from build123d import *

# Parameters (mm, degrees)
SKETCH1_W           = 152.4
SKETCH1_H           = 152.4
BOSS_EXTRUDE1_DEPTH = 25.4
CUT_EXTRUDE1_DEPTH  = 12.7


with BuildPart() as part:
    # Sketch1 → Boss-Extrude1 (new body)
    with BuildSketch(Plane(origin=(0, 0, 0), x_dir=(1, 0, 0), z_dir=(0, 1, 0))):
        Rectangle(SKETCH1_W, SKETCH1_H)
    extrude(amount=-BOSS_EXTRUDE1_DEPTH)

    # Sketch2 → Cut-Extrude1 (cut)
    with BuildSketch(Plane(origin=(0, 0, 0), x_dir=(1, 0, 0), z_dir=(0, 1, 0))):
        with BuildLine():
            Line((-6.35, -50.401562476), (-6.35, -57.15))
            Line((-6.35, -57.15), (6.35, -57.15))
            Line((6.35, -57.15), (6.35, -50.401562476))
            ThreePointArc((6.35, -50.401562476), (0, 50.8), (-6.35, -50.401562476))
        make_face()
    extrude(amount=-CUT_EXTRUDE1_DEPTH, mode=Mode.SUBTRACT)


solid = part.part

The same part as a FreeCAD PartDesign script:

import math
import FreeCAD as App
import Part
import Sketcher

V = App.Vector
Q = App.Units.Quantity

doc = App.newDocument("Part")
body = doc.addObject("PartDesign::Body", "Body")

# Sketch on XZ plane
sketch1 = body.newObject("Sketcher::SketchObject", "Sketch")
sketch1.AttachmentSupport = (doc.getObject("XZ_Plane"), [""])
sketch1.MapMode = "FlatFace"
sketch1.addGeometry(Part.LineSegment(V(-76, -76, 0), V(-76, 76, 0)), False)
sketch1.addGeometry(Part.LineSegment(V(-76, 76, 0), V(76, 76, 0)), False)
sketch1.addGeometry(Part.LineSegment(V(76, 76, 0), V(76, -76, 0)), False)
sketch1.addGeometry(Part.LineSegment(V(76, -76, 0), V(-76, -76, 0)), False)
sketch1.addConstraint(Sketcher.Constraint("Coincident", 0, 2, 1, 1))
sketch1.addConstraint(Sketcher.Constraint("Coincident", 1, 2, 2, 1))
sketch1.addConstraint(Sketcher.Constraint("Coincident", 2, 2, 3, 1))
sketch1.addConstraint(Sketcher.Constraint("Coincident", 3, 2, 0, 1))
sketch1.addConstraint(Sketcher.Constraint("Vertical", 0))
sketch1.addConstraint(Sketcher.Constraint("Horizontal", 1))
sketch1.addConstraint(Sketcher.Constraint("Vertical", 2))
sketch1.addConstraint(Sketcher.Constraint("Horizontal", 3))
sketch1.addConstraint(Sketcher.Constraint("Symmetric", 0, 2, 2, 2, -1, 1))
sketch1.addConstraint(Sketcher.Constraint("Equal", 3, 0))
sketch1.addConstraint(Sketcher.Constraint("DistanceX", 1, 1, 1, 2, Q("6 in")))
pad1 = body.newObject("PartDesign::Pad", "Pad")
pad1.Profile = sketch1
pad1.Length = Q("1 in")

# Sketch on XZ plane
sketch2 = body.newObject("Sketcher::SketchObject", "Sketch001")
sketch2.AttachmentSupport = (doc.getObject("XZ_Plane"), [""])
sketch2.MapMode = "FlatFace"
sketch2.addGeometry(Part.LineSegment(V(-6, 50, 0), V(-6, 57, 0)), False)
sketch2.addGeometry(Part.LineSegment(V(-6, 57, 0), V(6, 57, 0)), False)
sketch2.addGeometry(Part.LineSegment(V(6, 57, 0), V(6, 50, 0)), False)
sketch2.addGeometry(Part.ArcOfCircle(Part.Circle(V(0, 0, 0), V(0, 0, 1), 51), math.radians(97), math.radians(443)), False)
sketch2.addConstraint(Sketcher.Constraint("Coincident", 0, 2, 1, 1))
sketch2.addConstraint(Sketcher.Constraint("Coincident", 1, 2, 2, 1))
sketch2.addConstraint(Sketcher.Constraint("Coincident", 2, 2, 3, 2))
sketch2.addConstraint(Sketcher.Constraint("Coincident", 3, 1, 0, 1))
sketch2.addConstraint(Sketcher.Constraint("Vertical", 0))
sketch2.addConstraint(Sketcher.Constraint("Horizontal", 1))
sketch2.addConstraint(Sketcher.Constraint("Vertical", 2))
sketch2.addConstraint(Sketcher.Constraint("Coincident", 3, 3, -1, 1))
sketch2.addConstraint(Sketcher.Constraint("Horizontal", 2, 2, 3, 1))
sketch2.addConstraint(Sketcher.Constraint("Radius", 3, Q("2 in")))
sketch2.addConstraint(Sketcher.Constraint("DistanceX", 1, 1, 1, 2, Q("0.5 in")))
sketch2.addConstraint(Sketcher.Constraint("DistanceY", -1, 1, 0, 2, Q("2.25 in")))
pocket1 = body.newObject("PartDesign::Pocket", "Pocket")
pocket1.Profile = sketch2
pocket1.Length = Q("0.5 in")
pocket1.Reversed = True

doc.recompute()
